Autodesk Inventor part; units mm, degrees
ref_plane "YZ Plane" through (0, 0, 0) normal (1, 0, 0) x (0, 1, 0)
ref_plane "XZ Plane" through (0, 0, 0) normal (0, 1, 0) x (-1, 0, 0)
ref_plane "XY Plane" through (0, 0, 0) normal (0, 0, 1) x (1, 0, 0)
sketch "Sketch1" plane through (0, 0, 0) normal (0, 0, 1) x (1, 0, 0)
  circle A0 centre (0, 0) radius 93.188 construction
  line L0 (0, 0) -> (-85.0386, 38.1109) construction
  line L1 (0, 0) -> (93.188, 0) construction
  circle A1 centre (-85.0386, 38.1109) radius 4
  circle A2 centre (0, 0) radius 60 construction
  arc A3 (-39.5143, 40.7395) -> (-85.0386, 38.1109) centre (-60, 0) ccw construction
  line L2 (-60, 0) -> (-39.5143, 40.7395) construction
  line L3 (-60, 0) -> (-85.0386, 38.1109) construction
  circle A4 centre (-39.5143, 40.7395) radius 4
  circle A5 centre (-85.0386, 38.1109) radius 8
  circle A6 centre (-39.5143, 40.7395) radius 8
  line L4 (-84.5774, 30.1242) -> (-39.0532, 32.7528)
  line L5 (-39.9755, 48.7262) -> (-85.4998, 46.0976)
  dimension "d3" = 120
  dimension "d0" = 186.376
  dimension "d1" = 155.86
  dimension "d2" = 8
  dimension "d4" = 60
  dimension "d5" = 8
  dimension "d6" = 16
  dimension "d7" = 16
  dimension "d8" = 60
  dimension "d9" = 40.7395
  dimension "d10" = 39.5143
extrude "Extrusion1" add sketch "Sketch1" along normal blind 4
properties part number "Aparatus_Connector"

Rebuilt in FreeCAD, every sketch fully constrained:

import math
import FreeCAD as App
import Part
import Sketcher
Q = App.Units.Quantity

doc = App.newDocument("Part")
body = doc.addObject("PartDesign::Body", "Body")

# Sketch on XY plane
sketch1 = body.newObject("Sketcher::SketchObject", "Sketch")
sketch1.AttachmentSupport = (doc.getObject("XY_Plane"), [""])
sketch1.MapMode = "FlatFace"
sketch1.addGeometry(Part.ArcOfCircle(Part.Circle(App.Vector(-85.0386, 38.1109, 0), App.Vector(0, 0, 1), 8), math.radians(93.304932), math.radians(273.304932)), False)
sketch1.addGeometry(Part.LineSegment(App.Vector(-84.5774, 30.1242, 0), App.Vector(-39.0532, 32.7528, 0)), False)
sketch1.addGeometry(Part.ArcOfCircle(Part.Circle(App.Vector(-39.5143, 40.7395, 0), App.Vector(0, 0, 1), 8), math.radians(-86.695783), math.radians(93.304932)), False)
sketch1.addGeometry(Part.LineSegment(App.Vector(-39.9755, 48.7262, 0), App.Vector(-85.4998, 46.0976, 0)), False)
sketch1.addGeometry(Part.Circle(App.Vector(-85.0386, 38.1109, 0), App.Vector(0, 0, 1), 4), False)
sketch1.addGeometry(Part.Circle(App.Vector(-39.5143, 40.7395, 0), App.Vector(0, 0, 1), 4), False)
sketch1.addConstraint(Sketcher.Constraint("Tangent", 0, 2, 1, 1))
sketch1.addConstraint(Sketcher.Constraint("Tangent", 1, 2, 2, 1))
sketch1.addConstraint(Sketcher.Constraint("Tangent", 2, 2, 3, 1))
sketch1.addConstraint(Sketcher.Constraint("Tangent", 3, 2, 0, 1))
sketch1.addConstraint(Sketcher.Constraint("Coincident", 4, 3, 0, 3))
sketch1.addConstraint(Sketcher.Constraint("Coincident", 5, 3, 2, 3))
sketch1.addConstraint(Sketcher.Constraint("Equal", 0, 2))
sketch1.addConstraint(Sketcher.Constraint("Equal", 4, 5))
sketch1.addConstraint(Sketcher.Constraint("Diameter", 4, Q("8 mm")))
sketch1.addConstraint(Sketcher.Constraint("Radius", 0, Q("8 mm")))
sketch1.addConstraint(Sketcher.Constraint("Distance", 1, Q("45.6 mm")))
sketch1.addConstraint(Sketcher.Constraint("DistanceX", 2, 3, -1, 1, Q("39.5143 mm")))
sketch1.addConstraint(Sketcher.Constraint("DistanceY", -1, 1, 2, 3, Q("40.7395 mm")))
sketch1.addConstraint(Sketcher.Constraint("DistanceY", -1, 1, 0, 3, Q("38.111 mm")))
pad1 = body.newObject("PartDesign::Pad", "Pad")
pad1.Profile = sketch1
pad1.Length = 4

doc.recompute()
